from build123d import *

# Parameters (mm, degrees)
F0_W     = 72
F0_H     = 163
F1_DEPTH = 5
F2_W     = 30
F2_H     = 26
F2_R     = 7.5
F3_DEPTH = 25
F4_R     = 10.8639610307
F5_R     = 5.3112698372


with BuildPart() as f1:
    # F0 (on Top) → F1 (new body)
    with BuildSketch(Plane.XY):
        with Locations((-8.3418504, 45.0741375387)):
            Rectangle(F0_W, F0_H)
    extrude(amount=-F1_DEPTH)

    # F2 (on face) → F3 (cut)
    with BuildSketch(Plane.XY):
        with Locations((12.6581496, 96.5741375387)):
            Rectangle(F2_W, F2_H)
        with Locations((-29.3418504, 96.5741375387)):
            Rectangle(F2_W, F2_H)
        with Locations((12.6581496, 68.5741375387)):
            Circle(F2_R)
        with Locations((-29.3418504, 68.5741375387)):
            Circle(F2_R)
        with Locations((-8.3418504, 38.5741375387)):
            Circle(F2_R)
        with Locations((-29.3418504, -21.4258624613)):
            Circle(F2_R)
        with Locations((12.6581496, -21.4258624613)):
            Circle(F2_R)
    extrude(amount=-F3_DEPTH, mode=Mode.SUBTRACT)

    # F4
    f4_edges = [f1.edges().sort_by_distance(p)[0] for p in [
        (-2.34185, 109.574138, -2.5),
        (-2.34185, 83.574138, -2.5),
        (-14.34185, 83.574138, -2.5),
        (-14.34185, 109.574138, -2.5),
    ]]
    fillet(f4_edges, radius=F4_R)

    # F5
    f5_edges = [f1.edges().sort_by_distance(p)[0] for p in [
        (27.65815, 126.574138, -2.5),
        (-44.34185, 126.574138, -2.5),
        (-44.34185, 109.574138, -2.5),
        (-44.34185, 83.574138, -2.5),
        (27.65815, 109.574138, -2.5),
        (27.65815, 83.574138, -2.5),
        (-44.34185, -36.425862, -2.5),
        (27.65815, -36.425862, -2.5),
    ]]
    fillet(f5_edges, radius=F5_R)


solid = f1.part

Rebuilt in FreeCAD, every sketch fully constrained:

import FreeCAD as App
import Part
import Sketcher

V = App.Vector
Q = App.Units.Quantity


def edges_at(feature, points):
    """Names of the edges that pass closest to the given points."""
    edges = feature.Shape.Edges
    near = lambda p: min(range(len(edges)), key=lambda i: edges[i].distToShape(Part.Vertex(*p))[0])
    return sorted({f"Edge{near(p) + 1}" for p in points})


def add_polygon(sketch, points):
    """Adds a closed chain of lines whose ends are joined by coincident constraints."""
    first, n = sketch.GeometryCount, len(points)
    for a, b in zip(points, points[1:] + points[:1]):
        sketch.addGeometry(Part.LineSegment(App.Vector(*a, 0), App.Vector(*b, 0)), False)
    for i in range(n):
        sketch.addConstraint(Sketcher.Constraint("Coincident", first + i, 2, first + (i + 1) % n, 1))

doc = App.newDocument("Part")
body = doc.addObject("PartDesign::Body", "Body")

# Sketch on XY plane
sketch1 = body.newObject("Sketcher::SketchObject", "Sketch")
sketch1.AttachmentSupport = (doc.getObject("XY_Plane"), [""])
sketch1.MapMode = "FlatFace"
add_polygon(sketch1, [(-44, 127), (-44, -36), (28, -36), (28, 127)])  # lines 0-3
sketch1.addConstraint(Sketcher.Constraint("Vertical", 0))
sketch1.addConstraint(Sketcher.Constraint("Horizontal", 1))
sketch1.addConstraint(Sketcher.Constraint("Vertical", 2))
sketch1.addConstraint(Sketcher.Constraint("Horizontal", 3))
sketch1.addConstraint(Sketcher.Constraint("DistanceX", 1, 1, 1, 2, Q("72 mm")))
sketch1.addConstraint(Sketcher.Constraint("DistanceY", 0, 2, 0, 1, Q("163 mm")))
sketch1.addConstraint(Sketcher.Constraint("DistanceX", 0, 2, -1, 1, Q("44.34185 mm")))
sketch1.addConstraint(Sketcher.Constraint("DistanceY", 0, 2, -1, 1, Q("36.425862 mm")))
pad1 = body.newObject("PartDesign::Pad", "Pad")
pad1.Profile = sketch1
pad1.Length = 5
pad1.Reversed = True

# Sketch on XY plane
sketch2 = body.newObject("Sketcher::SketchObject", "Sketch001")
sketch2.AttachmentSupport = (doc.getObject("XY_Plane"), [""])
sketch2.MapMode = "FlatFace"
add_polygon(sketch2, [(-2, 110), (-2, 84), (28, 84), (28, 110)])  # lines 0-3
add_polygon(sketch2, [(-44, 110), (-44, 84), (-14, 84), (-14, 110)])  # lines 4-7
sketch2.addGeometry(Part.Circle(V(13, 69, 0), V(0, 0, 1), 8), False)  # 8
sketch2.addGeometry(Part.Circle(V(-29, 69, 0), V(0, 0, 1), 8), False)  # 9
sketch2.addGeometry(Part.Circle(V(-8, 39, 0), V(0, 0, 1), 8), False)  # 10
sketch2.addGeometry(Part.Circle(V(-29, -21, 0), V(0, 0, 1), 8), False)  # 11
sketch2.addGeometry(Part.Circle(V(13, -21, 0), V(0, 0, 1), 8), False)  # 12
sketch2.addConstraint(Sketcher.Constraint("Vertical", 0))
sketch2.addConstraint(Sketcher.Constraint("Horizontal", 1))
sketch2.addConstraint(Sketcher.Constraint("Vertical", 2))
sketch2.addConstraint(Sketcher.Constraint("Horizontal", 3))
sketch2.addConstraint(Sketcher.Constraint("Vertical", 4))
sketch2.addConstraint(Sketcher.Constraint("Horizontal", 5))
sketch2.addConstraint(Sketcher.Constraint("Vertical", 6))
sketch2.addConstraint(Sketcher.Constraint("Horizontal", 7))
sketch2.addConstraint(Sketcher.Constraint("Equal", 8, 9))
sketch2.addConstraint(Sketcher.Constraint("Equal", 9, 10))
sketch2.addConstraint(Sketcher.Constraint("Equal", 10, 11))
sketch2.addConstraint(Sketcher.Constraint("Equal", 11, 12))
sketch2.addConstraint(Sketcher.Constraint("Horizontal", 8, 3, 9, 3))
sketch2.addConstraint(Sketcher.Constraint("Horizontal", 11, 3, 12, 3))
sketch2.addConstraint(Sketcher.Constraint("Horizontal", 1, 2, 4, 2))
sketch2.addConstraint(Sketcher.Constraint("Horizontal", 3, 2, 6, 2))
sketch2.addConstraint(Sketcher.Constraint("Vertical", 9, 3, 11, 3))
sketch2.addConstraint(Sketcher.Constraint("Vertical", 8, 3, 12, 3))
sketch2.addConstraint(Sketcher.Constraint("Equal", 3, 5))
sketch2.addConstraint(Sketcher.Constraint("Diameter", 8, Q("15 mm")))
sketch2.addConstraint(Sketcher.Constraint("DistanceX", 1, 1, 1, 2, Q("30 mm")))
sketch2.addConstraint(Sketcher.Constraint("DistanceY", 0, 2, 0, 1, Q("26 mm")))
sketch2.addConstraint(Sketcher.Constraint("DistanceX", 9, 3, 8, 3, Q("42 mm")))
sketch2.addConstraint(Sketcher.Constraint("DistanceX", 10, 3, 8, 3, Q("21 mm")))
sketch2.addConstraint(Sketcher.Constraint("DistanceY", 10, 3, 8, 3, Q("30 mm")))
sketch2.addConstraint(Sketcher.Constraint("DistanceY", 11, 3, 10, 3, Q("60 mm")))
sketch2.addConstraint(Sketcher.Constraint("DistanceX", 0, 2, 8, 3, Q("15 mm")))
sketch2.addConstraint(Sketcher.Constraint("DistanceY", 8, 3, 0, 2, Q("15 mm")))
sketch2.addConstraint(Sketcher.Constraint("DistanceX", 4, 2, 9, 3, Q("15 mm")))
sketch2.addConstraint(Sketcher.Constraint("DistanceX", -1, 1, 8, 3, Q("12.65815 mm")))
sketch2.addConstraint(Sketcher.Constraint("DistanceY", -1, 1, 8, 3, Q("68.574138 mm")))
pocket1 = body.newObject("PartDesign::Pocket", "Pocket")
pocket1.Profile = sketch2
pocket1.Length = 25
doc.recompute()

fillet = body.newObject("PartDesign::Fillet", "Fillet")
fillet.Base = (pocket1, edges_at(pocket1, [
    (-2.342, 109.574, -2.5),
    (-2.342, 83.574, -2.5),
    (-14.342, 83.574, -2.5),
    (-14.342, 109.574, -2.5),
]))
fillet.Radius = 10.863961
doc.recompute()

fillet2 = body.newObject("PartDesign::Fillet", "Fillet001")
fillet2.Base = (fillet, edges_at(fillet, [
    (27.658, 126.574, -2.5),
    (-44.342, 126.574, -2.5),
    (-44.342, 109.574, -2.5),
    (-44.342, 83.574, -2.5),
    (27.658, 109.574, -2.5),
    (27.658, 83.574, -2.5),
    (-44.342, -36.426, -2.5),
    (27.658, -36.426, -2.5),
]))
fillet2.Radius = 5.31127

doc.recompute()
